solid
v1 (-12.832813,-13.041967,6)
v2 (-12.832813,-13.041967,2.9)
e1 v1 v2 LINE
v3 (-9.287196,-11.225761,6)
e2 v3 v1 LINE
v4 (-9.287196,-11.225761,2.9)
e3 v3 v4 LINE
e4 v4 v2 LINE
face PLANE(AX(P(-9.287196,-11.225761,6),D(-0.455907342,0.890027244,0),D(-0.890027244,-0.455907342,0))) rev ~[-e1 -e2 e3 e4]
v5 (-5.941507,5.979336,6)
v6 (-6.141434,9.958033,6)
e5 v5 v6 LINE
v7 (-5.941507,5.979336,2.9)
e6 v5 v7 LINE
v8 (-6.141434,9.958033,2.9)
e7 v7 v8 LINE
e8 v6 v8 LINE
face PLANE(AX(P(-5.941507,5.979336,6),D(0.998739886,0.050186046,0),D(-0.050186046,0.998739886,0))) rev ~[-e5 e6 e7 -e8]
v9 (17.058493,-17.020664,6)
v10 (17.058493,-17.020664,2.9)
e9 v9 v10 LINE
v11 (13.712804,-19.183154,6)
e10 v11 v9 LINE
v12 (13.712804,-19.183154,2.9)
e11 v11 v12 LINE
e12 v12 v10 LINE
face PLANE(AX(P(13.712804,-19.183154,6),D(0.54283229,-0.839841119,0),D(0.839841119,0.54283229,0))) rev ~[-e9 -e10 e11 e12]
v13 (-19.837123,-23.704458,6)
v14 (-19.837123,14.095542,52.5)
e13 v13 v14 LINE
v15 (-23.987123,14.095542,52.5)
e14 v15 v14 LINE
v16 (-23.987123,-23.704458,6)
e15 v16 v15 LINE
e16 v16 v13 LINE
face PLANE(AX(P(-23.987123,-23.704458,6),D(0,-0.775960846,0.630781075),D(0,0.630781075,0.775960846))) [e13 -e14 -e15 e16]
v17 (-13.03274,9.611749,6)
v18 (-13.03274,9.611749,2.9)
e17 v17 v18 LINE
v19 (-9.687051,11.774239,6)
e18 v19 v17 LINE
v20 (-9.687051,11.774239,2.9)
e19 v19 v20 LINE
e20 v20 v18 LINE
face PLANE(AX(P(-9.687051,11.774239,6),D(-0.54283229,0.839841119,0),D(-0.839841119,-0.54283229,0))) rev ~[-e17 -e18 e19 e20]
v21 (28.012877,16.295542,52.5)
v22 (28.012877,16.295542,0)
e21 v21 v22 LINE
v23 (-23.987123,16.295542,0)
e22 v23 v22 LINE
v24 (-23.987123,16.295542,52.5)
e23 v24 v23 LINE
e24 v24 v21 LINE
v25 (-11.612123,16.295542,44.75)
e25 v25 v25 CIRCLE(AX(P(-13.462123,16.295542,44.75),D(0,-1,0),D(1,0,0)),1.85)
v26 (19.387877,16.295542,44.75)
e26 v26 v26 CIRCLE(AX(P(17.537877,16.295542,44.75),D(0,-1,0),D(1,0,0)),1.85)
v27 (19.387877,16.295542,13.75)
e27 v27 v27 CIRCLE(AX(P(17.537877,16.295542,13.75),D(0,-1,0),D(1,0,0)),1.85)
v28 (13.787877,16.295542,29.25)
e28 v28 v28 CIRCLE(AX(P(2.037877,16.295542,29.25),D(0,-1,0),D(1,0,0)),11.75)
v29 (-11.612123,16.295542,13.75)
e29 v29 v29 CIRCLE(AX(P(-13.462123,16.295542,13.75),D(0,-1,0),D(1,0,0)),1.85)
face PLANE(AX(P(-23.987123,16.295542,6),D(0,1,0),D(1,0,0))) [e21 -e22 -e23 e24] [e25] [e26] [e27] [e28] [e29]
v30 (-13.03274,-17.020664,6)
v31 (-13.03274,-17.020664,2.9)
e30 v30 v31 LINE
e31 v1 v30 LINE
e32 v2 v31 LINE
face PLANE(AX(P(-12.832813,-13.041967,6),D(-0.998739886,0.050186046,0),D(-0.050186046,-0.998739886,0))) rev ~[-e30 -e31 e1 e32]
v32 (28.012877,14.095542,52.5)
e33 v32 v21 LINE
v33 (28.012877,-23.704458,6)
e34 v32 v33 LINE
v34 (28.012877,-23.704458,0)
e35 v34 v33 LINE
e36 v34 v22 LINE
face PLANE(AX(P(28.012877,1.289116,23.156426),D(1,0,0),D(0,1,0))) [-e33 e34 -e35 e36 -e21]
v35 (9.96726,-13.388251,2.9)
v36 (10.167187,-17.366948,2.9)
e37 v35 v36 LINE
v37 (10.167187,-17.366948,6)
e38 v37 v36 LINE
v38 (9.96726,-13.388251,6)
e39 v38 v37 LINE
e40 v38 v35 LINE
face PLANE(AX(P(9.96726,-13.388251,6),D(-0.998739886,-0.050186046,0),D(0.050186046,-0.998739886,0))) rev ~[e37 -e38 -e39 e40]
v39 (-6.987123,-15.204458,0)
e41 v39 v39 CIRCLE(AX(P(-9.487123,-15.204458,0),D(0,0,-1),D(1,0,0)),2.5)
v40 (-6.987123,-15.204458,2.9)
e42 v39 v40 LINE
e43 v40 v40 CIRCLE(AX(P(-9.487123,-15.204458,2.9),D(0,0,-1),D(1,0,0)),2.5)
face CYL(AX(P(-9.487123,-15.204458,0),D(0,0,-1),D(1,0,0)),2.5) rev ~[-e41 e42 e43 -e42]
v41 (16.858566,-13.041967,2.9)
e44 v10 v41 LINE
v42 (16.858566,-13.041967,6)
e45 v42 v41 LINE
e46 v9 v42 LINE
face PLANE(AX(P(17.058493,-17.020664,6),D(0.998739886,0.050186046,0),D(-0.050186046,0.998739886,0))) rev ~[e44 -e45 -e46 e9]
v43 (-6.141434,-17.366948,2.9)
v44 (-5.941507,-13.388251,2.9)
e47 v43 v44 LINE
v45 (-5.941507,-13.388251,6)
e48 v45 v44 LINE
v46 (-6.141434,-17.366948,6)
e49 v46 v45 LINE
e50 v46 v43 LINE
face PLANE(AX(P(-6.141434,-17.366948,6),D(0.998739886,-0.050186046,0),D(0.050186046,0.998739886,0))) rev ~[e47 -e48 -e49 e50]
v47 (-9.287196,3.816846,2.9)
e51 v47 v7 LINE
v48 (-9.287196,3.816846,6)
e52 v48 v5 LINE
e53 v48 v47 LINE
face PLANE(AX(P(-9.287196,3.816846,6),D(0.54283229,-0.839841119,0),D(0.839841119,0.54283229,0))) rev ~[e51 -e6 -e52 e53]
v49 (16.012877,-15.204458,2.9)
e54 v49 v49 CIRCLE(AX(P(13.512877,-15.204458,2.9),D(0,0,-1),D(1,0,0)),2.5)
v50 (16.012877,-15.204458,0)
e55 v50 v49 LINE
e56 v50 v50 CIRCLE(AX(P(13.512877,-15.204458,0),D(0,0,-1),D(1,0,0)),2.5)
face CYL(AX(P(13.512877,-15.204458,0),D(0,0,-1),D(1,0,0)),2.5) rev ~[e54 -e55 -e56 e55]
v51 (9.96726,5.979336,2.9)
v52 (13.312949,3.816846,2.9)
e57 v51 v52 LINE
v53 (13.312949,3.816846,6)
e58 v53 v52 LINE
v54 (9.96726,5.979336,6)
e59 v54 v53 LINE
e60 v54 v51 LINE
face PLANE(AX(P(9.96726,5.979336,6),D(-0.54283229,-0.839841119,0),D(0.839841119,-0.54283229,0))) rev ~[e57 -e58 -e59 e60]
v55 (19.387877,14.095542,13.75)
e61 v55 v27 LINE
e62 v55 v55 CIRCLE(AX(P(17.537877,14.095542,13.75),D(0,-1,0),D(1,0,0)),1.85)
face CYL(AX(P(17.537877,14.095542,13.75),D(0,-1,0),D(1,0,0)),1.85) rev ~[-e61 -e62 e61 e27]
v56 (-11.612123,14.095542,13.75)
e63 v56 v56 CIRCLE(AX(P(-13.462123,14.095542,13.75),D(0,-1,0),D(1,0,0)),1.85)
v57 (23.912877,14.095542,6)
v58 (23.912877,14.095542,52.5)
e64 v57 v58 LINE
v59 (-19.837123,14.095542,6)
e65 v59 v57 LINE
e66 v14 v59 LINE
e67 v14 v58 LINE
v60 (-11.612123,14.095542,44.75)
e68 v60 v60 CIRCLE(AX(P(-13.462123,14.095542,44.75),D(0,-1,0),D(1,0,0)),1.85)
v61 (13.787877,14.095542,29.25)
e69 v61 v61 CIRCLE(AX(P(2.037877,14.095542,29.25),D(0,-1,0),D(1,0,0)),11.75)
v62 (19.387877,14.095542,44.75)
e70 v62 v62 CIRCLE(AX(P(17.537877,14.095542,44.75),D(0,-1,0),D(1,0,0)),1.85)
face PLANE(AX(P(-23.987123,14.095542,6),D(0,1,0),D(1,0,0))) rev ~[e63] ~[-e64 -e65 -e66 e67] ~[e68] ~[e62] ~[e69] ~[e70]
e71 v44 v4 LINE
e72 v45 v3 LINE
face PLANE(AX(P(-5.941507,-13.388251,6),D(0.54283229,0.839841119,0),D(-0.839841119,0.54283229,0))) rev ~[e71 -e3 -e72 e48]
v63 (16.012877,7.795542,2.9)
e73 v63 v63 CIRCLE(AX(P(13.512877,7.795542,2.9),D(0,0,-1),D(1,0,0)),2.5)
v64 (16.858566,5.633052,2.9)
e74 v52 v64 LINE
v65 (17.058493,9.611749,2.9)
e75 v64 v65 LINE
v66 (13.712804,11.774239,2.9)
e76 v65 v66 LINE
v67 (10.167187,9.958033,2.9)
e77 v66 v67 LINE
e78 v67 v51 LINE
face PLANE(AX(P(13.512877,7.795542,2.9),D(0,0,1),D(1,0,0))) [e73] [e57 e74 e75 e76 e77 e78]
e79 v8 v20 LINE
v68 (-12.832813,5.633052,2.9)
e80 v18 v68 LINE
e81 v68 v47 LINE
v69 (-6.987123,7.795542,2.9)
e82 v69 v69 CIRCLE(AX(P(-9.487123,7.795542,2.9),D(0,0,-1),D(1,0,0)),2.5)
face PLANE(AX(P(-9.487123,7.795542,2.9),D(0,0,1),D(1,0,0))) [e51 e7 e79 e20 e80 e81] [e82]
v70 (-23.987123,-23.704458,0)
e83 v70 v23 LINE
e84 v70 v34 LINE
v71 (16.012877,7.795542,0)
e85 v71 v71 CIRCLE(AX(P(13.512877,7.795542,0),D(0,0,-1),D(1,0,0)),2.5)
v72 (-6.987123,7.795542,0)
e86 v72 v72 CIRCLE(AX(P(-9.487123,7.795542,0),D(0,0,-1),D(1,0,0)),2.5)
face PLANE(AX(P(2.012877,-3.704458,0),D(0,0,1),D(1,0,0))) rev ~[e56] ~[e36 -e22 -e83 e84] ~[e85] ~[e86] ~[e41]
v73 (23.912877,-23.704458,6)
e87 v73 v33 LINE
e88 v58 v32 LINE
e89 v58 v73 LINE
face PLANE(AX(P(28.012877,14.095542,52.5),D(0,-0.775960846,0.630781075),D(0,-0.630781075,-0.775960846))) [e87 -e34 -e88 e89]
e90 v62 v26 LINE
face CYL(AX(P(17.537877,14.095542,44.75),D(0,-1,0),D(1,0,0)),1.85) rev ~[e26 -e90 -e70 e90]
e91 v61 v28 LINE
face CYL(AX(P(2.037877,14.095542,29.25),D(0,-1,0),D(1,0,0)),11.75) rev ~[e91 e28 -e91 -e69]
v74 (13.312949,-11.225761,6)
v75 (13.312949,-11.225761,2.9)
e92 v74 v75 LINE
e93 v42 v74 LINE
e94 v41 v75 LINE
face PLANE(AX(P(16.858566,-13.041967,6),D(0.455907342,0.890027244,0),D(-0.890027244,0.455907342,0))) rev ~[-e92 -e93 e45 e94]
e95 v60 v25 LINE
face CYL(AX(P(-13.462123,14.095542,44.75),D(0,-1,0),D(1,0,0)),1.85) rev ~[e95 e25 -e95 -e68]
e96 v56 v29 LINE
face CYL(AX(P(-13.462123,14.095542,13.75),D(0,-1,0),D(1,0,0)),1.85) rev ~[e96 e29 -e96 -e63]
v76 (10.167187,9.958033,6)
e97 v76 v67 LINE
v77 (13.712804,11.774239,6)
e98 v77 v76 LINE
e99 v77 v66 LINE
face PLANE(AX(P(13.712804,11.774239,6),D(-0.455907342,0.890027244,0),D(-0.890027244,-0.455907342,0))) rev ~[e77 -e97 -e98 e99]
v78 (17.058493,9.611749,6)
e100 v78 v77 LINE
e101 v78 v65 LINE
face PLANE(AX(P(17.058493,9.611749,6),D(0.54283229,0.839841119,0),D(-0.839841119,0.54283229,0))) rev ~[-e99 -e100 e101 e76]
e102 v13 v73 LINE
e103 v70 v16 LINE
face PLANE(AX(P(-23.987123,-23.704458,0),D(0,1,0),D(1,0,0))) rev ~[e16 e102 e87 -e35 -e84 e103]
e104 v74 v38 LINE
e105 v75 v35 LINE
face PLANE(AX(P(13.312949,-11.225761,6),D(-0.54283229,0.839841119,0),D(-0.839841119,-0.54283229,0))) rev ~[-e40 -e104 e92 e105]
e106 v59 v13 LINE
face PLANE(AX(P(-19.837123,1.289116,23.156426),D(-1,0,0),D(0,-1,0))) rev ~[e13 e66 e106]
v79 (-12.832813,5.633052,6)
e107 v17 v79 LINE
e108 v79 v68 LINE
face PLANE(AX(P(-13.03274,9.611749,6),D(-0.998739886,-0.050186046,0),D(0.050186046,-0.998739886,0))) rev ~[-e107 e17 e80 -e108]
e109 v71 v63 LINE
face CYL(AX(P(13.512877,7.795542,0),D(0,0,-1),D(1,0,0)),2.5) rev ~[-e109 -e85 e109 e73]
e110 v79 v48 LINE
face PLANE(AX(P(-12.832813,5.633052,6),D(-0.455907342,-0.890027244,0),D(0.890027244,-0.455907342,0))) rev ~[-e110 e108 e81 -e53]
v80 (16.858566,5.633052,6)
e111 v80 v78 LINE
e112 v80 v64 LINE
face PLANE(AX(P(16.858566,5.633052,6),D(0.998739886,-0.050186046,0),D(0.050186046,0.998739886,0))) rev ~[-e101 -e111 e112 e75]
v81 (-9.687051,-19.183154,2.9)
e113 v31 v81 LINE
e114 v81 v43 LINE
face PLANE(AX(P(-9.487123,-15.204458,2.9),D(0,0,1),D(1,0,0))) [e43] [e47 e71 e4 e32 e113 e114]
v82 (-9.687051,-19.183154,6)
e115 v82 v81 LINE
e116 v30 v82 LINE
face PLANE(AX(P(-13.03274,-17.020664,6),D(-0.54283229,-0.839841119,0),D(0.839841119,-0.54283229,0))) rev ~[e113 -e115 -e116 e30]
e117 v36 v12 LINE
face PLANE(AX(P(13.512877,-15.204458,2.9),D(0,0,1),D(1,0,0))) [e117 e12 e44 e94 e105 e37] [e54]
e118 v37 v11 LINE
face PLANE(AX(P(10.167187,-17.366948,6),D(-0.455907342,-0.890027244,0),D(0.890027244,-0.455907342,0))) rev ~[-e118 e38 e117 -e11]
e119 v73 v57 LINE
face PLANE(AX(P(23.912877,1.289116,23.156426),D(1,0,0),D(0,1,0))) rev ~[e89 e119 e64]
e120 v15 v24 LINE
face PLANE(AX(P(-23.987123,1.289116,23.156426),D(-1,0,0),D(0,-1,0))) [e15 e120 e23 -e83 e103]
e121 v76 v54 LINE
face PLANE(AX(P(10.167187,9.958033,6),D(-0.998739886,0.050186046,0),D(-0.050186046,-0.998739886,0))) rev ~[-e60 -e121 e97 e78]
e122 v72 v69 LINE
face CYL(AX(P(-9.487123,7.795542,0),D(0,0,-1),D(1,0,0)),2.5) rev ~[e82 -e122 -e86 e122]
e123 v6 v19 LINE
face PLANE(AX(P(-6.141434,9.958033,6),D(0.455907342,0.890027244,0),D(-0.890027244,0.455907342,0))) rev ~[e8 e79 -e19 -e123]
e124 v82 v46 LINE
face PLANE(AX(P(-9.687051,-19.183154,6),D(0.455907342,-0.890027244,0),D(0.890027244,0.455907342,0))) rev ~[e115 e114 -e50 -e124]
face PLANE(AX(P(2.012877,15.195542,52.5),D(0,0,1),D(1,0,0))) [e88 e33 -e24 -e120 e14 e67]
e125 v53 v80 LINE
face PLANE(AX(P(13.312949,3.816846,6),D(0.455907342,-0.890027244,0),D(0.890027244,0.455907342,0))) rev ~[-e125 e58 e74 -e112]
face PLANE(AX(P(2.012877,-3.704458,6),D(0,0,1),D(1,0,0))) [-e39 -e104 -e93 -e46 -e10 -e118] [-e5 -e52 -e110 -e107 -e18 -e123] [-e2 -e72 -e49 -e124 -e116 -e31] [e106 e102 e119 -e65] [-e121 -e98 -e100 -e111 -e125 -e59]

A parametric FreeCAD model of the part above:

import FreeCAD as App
import Part
import Sketcher
from FreeCAD import Vector
Q = App.Units.Quantity


def add_polygon(sketch, points):
    """Adds a closed chain of lines whose ends are joined by coincident constraints."""
    first, n = sketch.GeometryCount, len(points)
    for a, b in zip(points, points[1:] + points[:1]):
        sketch.addGeometry(Part.LineSegment(App.Vector(*a, 0), App.Vector(*b, 0)), False)
    for i in range(n):
        sketch.addConstraint(Sketcher.Constraint("Coincident", first + i, 2, first + (i + 1) % n, 1))

doc = App.newDocument("Part")
body = doc.addObject("PartDesign::Body", "Body")

sketch1 = body.newObject("Sketcher::SketchObject", "Sketch")
sketch1.AttachmentSupport = (doc.getObject("XY_Plane"), [""])
sketch1.MapMode = "FlatFace"
add_polygon(sketch1, [(-24, 16), (-24, -24), (28, -24), (28, 16)])
sketch1.addConstraint([
    Sketcher.Constraint("Vertical", 0),
    Sketcher.Constraint("Horizontal", 1),
    Sketcher.Constraint("Vertical", 2),
    Sketcher.Constraint("Horizontal", 3),
    Sketcher.Constraint("DistanceX", 1, 1, 1, 2, Q("52 mm")),
    Sketcher.Constraint("DistanceY", 0, 2, 0, 1, Q("40 mm")),
    Sketcher.Constraint("DistanceX", 0, 2, -1, 1, Q("23.987123 mm")),
    Sketcher.Constraint("DistanceY", 0, 2, -1, 1, Q("23.704458 mm")),
])
pad1 = body.newObject("PartDesign::Pad", "Pad")
pad1.Profile = sketch1
pad1.Length = 6

sketch2 = body.newObject("Sketcher::SketchObject", "Sketch001")
sketch2.AttachmentSupport = (doc.getObject("XY_Plane"), [""])
sketch2.MapMode = "FlatFace"
sketch2.AttachmentOffset = App.Placement(Vector(0, 0, 6), App.Rotation())
add_polygon(sketch2, [(-24, 16.3), (-24, 14.1), (28, 14.1), (28, 16.3)])
sketch2.addConstraint([
    Sketcher.Constraint("Vertical", 0),
    Sketcher.Constraint("Horizontal", 1),
    Sketcher.Constraint("Vertical", 2),
    Sketcher.Constraint("Horizontal", 3),
    Sketcher.Constraint("DistanceX", 1, 1, 1, 2, Q("52 mm")),
    Sketcher.Constraint("DistanceY", 0, 2, 0, 1, Q("2.2 mm")),
    Sketcher.Constraint("DistanceX", 0, 2, -1, 1, Q("23.987123 mm")),
    Sketcher.Constraint("DistanceY", -1, 1, 0, 2, Q("14.095542 mm")),
])
pad2 = body.newObject("PartDesign::Pad", "Pad001")
pad2.Profile = sketch2
pad2.Length = 46.5

sketch3 = body.newObject("Sketcher::SketchObject", "Sketch002")
sketch3.AttachmentSupport = (doc.getObject("YZ_Plane"), [""])
sketch3.MapMode = "FlatFace"
sketch3.AttachmentOffset = App.Placement(Vector(0, 0, 28.012877), App.Rotation())
add_polygon(sketch3, [(14, 52), (-24, 6), (14, 6)])
sketch3.addConstraint([
    Sketcher.Constraint("Horizontal", 1),
    Sketcher.Constraint("Vertical", 2),
    Sketcher.Constraint("DistanceX", 1, 1, 1, 2, Q("37.8 mm")),
    Sketcher.Constraint("DistanceY", 2, 1, 2, 2, Q("46.5 mm")),
    Sketcher.Constraint("DistanceY", -1, 1, 0, 2, Q("6 mm")),
    Sketcher.Constraint("DistanceX", 0, 2, -1, 1, Q("23.704458 mm")),
])
pad3 = body.newObject("PartDesign::Pad", "Pad002")
pad3.Profile = sketch3
pad3.Length = 4.1
pad3.Reversed = True

sketch4 = body.newObject("Sketcher::SketchObject", "Sketch003")
sketch4.AttachmentSupport = (doc.getObject("YZ_Plane"), [""])
sketch4.MapMode = "FlatFace"
sketch4.AttachmentOffset = App.Placement(Vector(0, 0, -23.987123), App.Rotation())
add_polygon(sketch4, [(-24, 6), (14, 52), (14, 6)])
sketch4.addConstraint([
    Sketcher.Constraint("Vertical", 1),
    Sketcher.Constraint("Horizontal", 2),
    Sketcher.Constraint("DistanceX", 2, 2, 2, 1, Q("37.8 mm")),
    Sketcher.Constraint("DistanceY", 1, 2, 1, 1, Q("46.5 mm")),
    Sketcher.Constraint("DistanceY", -1, 1, 1, 2, Q("6 mm")),
    Sketcher.Constraint("DistanceX", -1, 1, 0, 2, Q("14.095542 mm")),
])
pad4 = body.newObject("PartDesign::Pad", "Pad003")
pad4.Profile = sketch4
pad4.Length = 4.15

sketch5 = body.newObject("Sketcher::SketchObject", "Sketch004")
sketch5.AttachmentSupport = (doc.getObject("XZ_Plane"), [""])
sketch5.MapMode = "FlatFace"
sketch5.AttachmentOffset = App.Placement(Vector(0, 0, -14.095542), App.Rotation())
sketch5.addGeometry([
    Part.Circle(Vector(2, 29.2, 0), Vector(0, 0, 1), 11.8),
    Part.Circle(Vector(17.5, 44.8, 0), Vector(0, 0, 1), 1.9),
    Part.Circle(Vector(-13.5, 44.8, 0), Vector(0, 0, 1), 1.9),
    Part.Circle(Vector(-13.5, 13.8, 0), Vector(0, 0, 1), 1.9),
    Part.Circle(Vector(17.5, 13.8, 0), Vector(0, 0, 1), 1.9),
], False)
sketch5.addConstraint([
    Sketcher.Constraint("Equal", 1, 2),
    Sketcher.Constraint("Equal", 2, 3),
    Sketcher.Constraint("Equal", 3, 4),
    Sketcher.Constraint("Horizontal", 1, 3, 2, 3),
    Sketcher.Constraint("Horizontal", 3, 3, 4, 3),
    Sketcher.Constraint("Vertical", 2, 3, 3, 3),
    Sketcher.Constraint("Vertical", 1, 3, 4, 3),
    Sketcher.Constraint("Diameter", 0, Q("23.5 mm")),
    Sketcher.Constraint("Diameter", 1, Q("3.7 mm")),
    Sketcher.Constraint("DistanceX", 2, 3, 1, 3, Q("31 mm")),
    Sketcher.Constraint("DistanceY", 3, 3, 2, 3, Q("31 mm")),
    Sketcher.Constraint("DistanceX", 0, 3, 1, 3, Q("15.5 mm")),
    Sketcher.Constraint("DistanceY", 0, 3, 1, 3, Q("15.5 mm")),
    Sketcher.Constraint("DistanceY", -1, 1, 0, 3, Q("29.25 mm")),
    Sketcher.Constraint("DistanceX", -1, 1, 0, 3, Q("2.037877 mm")),
])
pocket1 = body.newObject("PartDesign::Pocket", "Pocket")
pocket1.Profile = sketch5
pocket1.Length = 25

sketch6 = body.newObject("Sketcher::SketchObject", "Sketch005")
sketch6.AttachmentSupport = (doc.getObject("XY_Plane"), [""])
sketch6.MapMode = "FlatFace"
sketch6.addGeometry([
    Part.Circle(Vector(13.5, -15.2, 0), Vector(0, 0, 1), 2.5),
    Part.Circle(Vector(-9.5, -15.2, 0), Vector(0, 0, 1), 2.5),
    Part.Circle(Vector(-9.5, 7.8, 0), Vector(0, 0, 1), 2.5),
    Part.Circle(Vector(13.5, 7.8, 0), Vector(0, 0, 1), 2.5),
], False)
sketch6.addConstraint([
    Sketcher.Constraint("Equal", 0, 1),
    Sketcher.Constraint("Equal", 1, 2),
    Sketcher.Constraint("Equal", 2, 3),
    Sketcher.Constraint("Horizontal", 0, 3, 1, 3),
    Sketcher.Constraint("Horizontal", 2, 3, 3, 3),
    Sketcher.Constraint("Vertical", 1, 3, 2, 3),
    Sketcher.Constraint("Vertical", 0, 3, 3, 3),
    Sketcher.Constraint("Diameter", 0, Q("5 mm")),
    Sketcher.Constraint("DistanceX", 1, 3, 0, 3, Q("23 mm")),
    Sketcher.Constraint("DistanceY", 1, 3, 2, 3, Q("23 mm")),
    Sketcher.Constraint("DistanceY", 0, 3, -1, 1, Q("15.204458 mm")),
    Sketcher.Constraint("DistanceX", -1, 1, 0, 3, Q("13.512877 mm")),
])
pocket2 = body.newObject("PartDesign::Pocket", "Pocket001")
pocket2.Profile = sketch6
pocket2.Length = 25
pocket2.Reversed = True

sketch7 = body.newObject("Sketcher::SketchObject", "Sketch006")
sketch7.AttachmentSupport = (doc.getObject("XY_Plane"), [""])
sketch7.MapMode = "FlatFace"
sketch7.AttachmentOffset = App.Placement(Vector(0, 0, 6), App.Rotation())
add_polygon(sketch7, [(13.3, -11.2), (10, -13.4), (10.2, -17.4), (13.7, -19.2), (17.1, -17), (16.9, -13)])
add_polygon(sketch7, [(13.7, 11.8), (10.2, 10), (10, 6), (13.3, 3.8), (16.9, 5.6), (17.1, 9.6)])
add_polygon(sketch7, [(-13, -17), (-9.7, -19.2), (-6.1, -17.4), (-5.9, -13.4), (-9.3, -11.2), (-12.8, -13)])
add_polygon(sketch7, [(-5.9, 6), (-6.1, 10), (-9.7, 11.8), (-13, 9.6), (-12.8, 5.6), (-9.3, 3.8)])
sketch7.addConstraint([
    Sketcher.Constraint("Parallel", 0, 3),
    Sketcher.Constraint("Parallel", 1, 4),
    Sketcher.Constraint("Parallel", 2, 5),
    Sketcher.Constraint("Parallel", 6, 9),
    Sketcher.Constraint("Parallel", 7, 10),
    Sketcher.Constraint("Parallel", 8, 11),
    Sketcher.Constraint("Parallel", 11, 12),
    Sketcher.Constraint("Parallel", 9, 13),
    Sketcher.Constraint("Parallel", 10, 14),
    Sketcher.Constraint("Parallel", 12, 15),
    Sketcher.Constraint("Parallel", 13, 16),
    Sketcher.Constraint("Parallel", 14, 17),
    Sketcher.Constraint("Parallel", 4, 18),
    Sketcher.Constraint("Parallel", 5, 19),
    Sketcher.Constraint("Parallel", 3, 20),
    Sketcher.Constraint("Parallel", 18, 21),
    Sketcher.Constraint("Parallel", 19, 22),
    Sketcher.Constraint("Parallel", 20, 23),
    Sketcher.Constraint("Horizontal", 2, 2, 12, 2),
    Sketcher.Constraint("Horizontal", 1, 2, 13, 2),
    Sketcher.Constraint("Horizontal", 0, 2, 14, 2),
    Sketcher.Constraint("Horizontal", 5, 2, 15, 2),
    Sketcher.Constraint("Horizontal", 4, 2, 16, 2),
    Sketcher.Constraint("Horizontal", 6, 2, 18, 2),
    Sketcher.Constraint("Horizontal", 11, 2, 19, 2),
    Sketcher.Constraint("Horizontal", 10, 2, 20, 2),
    Sketcher.Constraint("Horizontal", 9, 2, 21, 2),
    Sketcher.Constraint("Horizontal", 8, 2, 22, 2),
    Sketcher.Constraint("Vertical", 1, 2, 6, 2),
    Sketcher.Constraint("Vertical", 0, 2, 7, 2),
    Sketcher.Constraint("Vertical", 5, 2, 8, 2),
    Sketcher.Constraint("Vertical", 4, 2, 9, 2),
    Sketcher.Constraint("Vertical", 3, 2, 10, 2),
    Sketcher.Constraint("Vertical", 13, 2, 18, 2),
    Sketcher.Constraint("Vertical", 12, 2, 19, 2),
    Sketcher.Constraint("Vertical", 17, 2, 20, 2),
    Sketcher.Constraint("Vertical", 16, 2, 21, 2),
    Sketcher.Constraint("Equal", 0, 1),
    Sketcher.Constraint("Equal", 1, 2),
    Sketcher.Constraint("Equal", 2, 3),
    Sketcher.Constraint("DistanceY", 4, 2, 6, 2, Q("23 mm")),
    Sketcher.Constraint("DistanceX", 12, 2, 5, 2, Q("23 mm")),
    Sketcher.Constraint("DistanceX", -1, 1, 0, 2, Q("9.96726 mm")),
    Sketcher.Constraint("DistanceY", 0, 2, -1, 1, Q("13.388251 mm")),
    Sketcher.Constraint("DistanceY", 1, 2, -1, 1, Q("17.366948 mm")),
    Sketcher.Constraint("DistanceX", -1, 1, 5, 2, Q("13.312949 mm")),
    Sketcher.Constraint("DistanceY", 5, 2, -1, 1, Q("11.225761 mm")),
    Sketcher.Constraint("DistanceX", 1, 2, 4, 2, Q("6.691379 mm")),
])
pocket3 = body.newObject("PartDesign::Pocket", "Pocket002")
pocket3.Profile = sketch7
pocket3.Length = 3.1

doc.recompute()
